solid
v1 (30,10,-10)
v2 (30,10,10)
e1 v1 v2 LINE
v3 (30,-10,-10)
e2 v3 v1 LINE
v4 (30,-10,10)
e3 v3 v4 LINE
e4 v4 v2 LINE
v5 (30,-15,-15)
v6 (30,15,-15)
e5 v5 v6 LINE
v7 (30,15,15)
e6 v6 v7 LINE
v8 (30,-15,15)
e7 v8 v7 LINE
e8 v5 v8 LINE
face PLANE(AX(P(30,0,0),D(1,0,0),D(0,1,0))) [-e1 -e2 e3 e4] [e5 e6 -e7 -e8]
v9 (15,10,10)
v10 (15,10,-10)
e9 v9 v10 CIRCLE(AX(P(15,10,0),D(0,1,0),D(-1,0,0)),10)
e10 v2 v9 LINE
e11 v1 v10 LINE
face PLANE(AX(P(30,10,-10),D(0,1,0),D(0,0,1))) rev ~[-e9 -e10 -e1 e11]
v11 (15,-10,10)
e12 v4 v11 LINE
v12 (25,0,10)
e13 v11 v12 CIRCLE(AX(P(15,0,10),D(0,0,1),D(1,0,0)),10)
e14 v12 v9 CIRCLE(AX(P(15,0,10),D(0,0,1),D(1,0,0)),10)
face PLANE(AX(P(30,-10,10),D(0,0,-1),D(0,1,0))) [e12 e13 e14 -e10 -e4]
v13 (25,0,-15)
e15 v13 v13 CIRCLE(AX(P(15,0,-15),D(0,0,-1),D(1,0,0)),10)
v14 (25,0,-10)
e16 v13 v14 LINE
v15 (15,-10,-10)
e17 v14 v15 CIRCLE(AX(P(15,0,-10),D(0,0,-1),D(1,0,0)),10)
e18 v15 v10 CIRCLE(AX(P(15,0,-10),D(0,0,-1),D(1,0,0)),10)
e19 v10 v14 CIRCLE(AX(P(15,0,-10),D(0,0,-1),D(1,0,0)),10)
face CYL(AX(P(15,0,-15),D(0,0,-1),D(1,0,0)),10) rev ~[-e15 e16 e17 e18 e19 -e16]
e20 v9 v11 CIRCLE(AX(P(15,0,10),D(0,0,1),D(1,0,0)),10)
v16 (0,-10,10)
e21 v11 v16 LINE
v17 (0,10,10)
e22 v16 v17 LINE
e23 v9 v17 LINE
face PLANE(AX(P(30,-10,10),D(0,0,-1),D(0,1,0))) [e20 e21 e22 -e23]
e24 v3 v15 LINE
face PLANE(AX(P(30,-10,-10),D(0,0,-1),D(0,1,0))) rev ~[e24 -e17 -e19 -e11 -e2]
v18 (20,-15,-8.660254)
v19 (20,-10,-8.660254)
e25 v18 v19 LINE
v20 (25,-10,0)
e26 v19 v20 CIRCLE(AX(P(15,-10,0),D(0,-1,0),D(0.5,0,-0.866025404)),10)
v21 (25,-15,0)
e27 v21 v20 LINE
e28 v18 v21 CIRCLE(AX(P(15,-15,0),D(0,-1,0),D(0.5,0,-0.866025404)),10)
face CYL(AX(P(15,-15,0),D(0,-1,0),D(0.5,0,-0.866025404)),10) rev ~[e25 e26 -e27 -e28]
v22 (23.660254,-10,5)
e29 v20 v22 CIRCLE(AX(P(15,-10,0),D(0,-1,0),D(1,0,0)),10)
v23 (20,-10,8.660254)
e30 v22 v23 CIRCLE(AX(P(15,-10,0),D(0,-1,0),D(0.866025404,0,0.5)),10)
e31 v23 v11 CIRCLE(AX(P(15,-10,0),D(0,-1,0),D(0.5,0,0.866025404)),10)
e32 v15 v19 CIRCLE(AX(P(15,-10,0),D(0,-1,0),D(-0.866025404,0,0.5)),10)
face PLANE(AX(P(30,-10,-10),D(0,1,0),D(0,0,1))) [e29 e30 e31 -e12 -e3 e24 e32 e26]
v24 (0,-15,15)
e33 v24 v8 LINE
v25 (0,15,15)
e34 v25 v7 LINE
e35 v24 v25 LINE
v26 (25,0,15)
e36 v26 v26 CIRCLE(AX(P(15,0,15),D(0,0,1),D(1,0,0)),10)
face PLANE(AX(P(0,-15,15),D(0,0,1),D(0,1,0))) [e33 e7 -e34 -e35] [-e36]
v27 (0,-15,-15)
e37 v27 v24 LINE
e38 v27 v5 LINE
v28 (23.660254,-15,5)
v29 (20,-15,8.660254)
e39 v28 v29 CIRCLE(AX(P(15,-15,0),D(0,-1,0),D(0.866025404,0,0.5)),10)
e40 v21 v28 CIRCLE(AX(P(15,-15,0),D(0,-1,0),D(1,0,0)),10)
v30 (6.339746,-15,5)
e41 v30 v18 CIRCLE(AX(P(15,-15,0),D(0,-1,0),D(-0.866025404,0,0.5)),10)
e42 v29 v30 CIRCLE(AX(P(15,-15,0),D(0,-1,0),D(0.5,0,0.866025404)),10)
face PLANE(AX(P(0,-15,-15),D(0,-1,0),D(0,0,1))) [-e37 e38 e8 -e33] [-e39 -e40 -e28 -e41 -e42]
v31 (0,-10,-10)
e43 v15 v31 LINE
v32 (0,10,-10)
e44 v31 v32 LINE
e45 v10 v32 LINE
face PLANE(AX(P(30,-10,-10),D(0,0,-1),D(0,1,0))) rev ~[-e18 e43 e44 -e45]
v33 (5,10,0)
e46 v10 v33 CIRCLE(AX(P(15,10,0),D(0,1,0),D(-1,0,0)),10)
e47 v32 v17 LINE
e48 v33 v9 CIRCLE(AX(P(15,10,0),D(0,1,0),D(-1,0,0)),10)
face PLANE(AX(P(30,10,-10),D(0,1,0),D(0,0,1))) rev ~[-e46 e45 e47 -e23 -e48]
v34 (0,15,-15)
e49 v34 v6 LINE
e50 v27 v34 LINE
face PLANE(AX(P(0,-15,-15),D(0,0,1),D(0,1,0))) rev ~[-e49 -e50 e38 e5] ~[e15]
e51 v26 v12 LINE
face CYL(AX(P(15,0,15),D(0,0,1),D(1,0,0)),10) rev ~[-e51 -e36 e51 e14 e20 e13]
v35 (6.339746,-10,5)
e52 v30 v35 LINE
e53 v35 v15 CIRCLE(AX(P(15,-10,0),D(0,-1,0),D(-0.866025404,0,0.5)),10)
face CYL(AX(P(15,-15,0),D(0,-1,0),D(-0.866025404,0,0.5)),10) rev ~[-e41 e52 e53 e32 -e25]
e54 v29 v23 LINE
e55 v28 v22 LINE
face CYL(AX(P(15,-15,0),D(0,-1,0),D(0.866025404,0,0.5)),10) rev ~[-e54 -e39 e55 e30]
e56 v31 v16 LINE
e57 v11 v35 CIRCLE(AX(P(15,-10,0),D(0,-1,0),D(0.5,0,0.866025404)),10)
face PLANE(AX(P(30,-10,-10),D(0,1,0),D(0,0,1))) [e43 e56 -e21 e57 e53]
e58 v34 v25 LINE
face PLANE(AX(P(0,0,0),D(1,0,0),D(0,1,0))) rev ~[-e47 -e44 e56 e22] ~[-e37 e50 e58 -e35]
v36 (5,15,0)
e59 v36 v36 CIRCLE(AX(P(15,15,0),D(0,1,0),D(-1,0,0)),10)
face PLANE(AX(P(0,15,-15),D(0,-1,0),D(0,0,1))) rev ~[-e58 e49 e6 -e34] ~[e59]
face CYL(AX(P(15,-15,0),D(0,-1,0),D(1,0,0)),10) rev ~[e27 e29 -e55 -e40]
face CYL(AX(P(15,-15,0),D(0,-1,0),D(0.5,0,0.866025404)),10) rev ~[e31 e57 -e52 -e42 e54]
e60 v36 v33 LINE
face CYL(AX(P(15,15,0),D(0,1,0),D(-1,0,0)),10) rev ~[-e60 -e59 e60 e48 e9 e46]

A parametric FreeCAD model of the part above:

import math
import FreeCAD as App
import Part
import Sketcher

V = App.Vector
Q = App.Units.Quantity


def add_polygon(sketch, points):
    """Adds a closed chain of lines whose ends are joined by coincident constraints."""
    first, n = sketch.GeometryCount, len(points)
    for a, b in zip(points, points[1:] + points[:1]):
        sketch.addGeometry(Part.LineSegment(App.Vector(*a, 0), App.Vector(*b, 0)), False)
    for i in range(n):
        sketch.addConstraint(Sketcher.Constraint("Coincident", first + i, 2, first + (i + 1) % n, 1))

doc = App.newDocument("Part")
body = doc.addObject("PartDesign::Body", "Body")

# Sketch on YZ plane
sketch1 = body.newObject("Sketcher::SketchObject", "Sketch")
sketch1.AttachmentSupport = (doc.getObject("YZ_Plane"), [""])
sketch1.MapMode = "FlatFace"
add_polygon(sketch1, [(-15, 15), (-15, -15), (15, -15), (15, 15)])  # lines 0-3
sketch1.addConstraint([
    Sketcher.Constraint("Vertical", 0),
    Sketcher.Constraint("Horizontal", 1),
    Sketcher.Constraint("Vertical", 2),
    Sketcher.Constraint("Horizontal", 3),
    Sketcher.Constraint("Symmetric", 0, 2, 2, 2, -1, 1),
    Sketcher.Constraint("Equal", 3, 0),
    Sketcher.Constraint("DistanceX", 1, 1, 1, 2, Q("30 mm")),
])
pad1 = body.newObject("PartDesign::Pad", "Pad")
pad1.Profile = sketch1
pad1.Length = 30

# Sketch on YZ plane
sketch2 = body.newObject("Sketcher::SketchObject", "Sketch001")
sketch2.AttachmentSupport = (doc.getObject("YZ_Plane"), [""])
sketch2.MapMode = "FlatFace"
sketch2.AttachmentOffset = App.Placement(V(0, 0, 30), App.Rotation())
add_polygon(sketch2, [(-10, 10), (-10, -10), (10, -10), (10, 10)])  # lines 0-3
sketch2.addConstraint([
    Sketcher.Constraint("Vertical", 0),
    Sketcher.Constraint("Horizontal", 1),
    Sketcher.Constraint("Vertical", 2),
    Sketcher.Constraint("Horizontal", 3),
    Sketcher.Constraint("Symmetric", 0, 2, 2, 2, -1, 1),
    Sketcher.Constraint("Equal", 3, 0),
    Sketcher.Constraint("DistanceX", 1, 1, 1, 2, Q("20 mm")),
])
pocket1 = body.newObject("PartDesign::Pocket", "Pocket")
pocket1.Profile = sketch2
pocket1.Type = "ThroughAll"

# Sketch on XZ plane
sketch3 = body.newObject("Sketcher::SketchObject", "Sketch002")
sketch3.AttachmentSupport = (doc.getObject("XZ_Plane"), [""])
sketch3.MapMode = "FlatFace"
sketch3.AttachmentOffset = App.Placement(V(0, 0, 15), App.Rotation())
sketch3.addGeometry([
    Part.ArcOfCircle(Part.Circle(V(15, 0, 0), V(0, 0, 1), 10), math.radians(30), math.radians(60)),  # 0
    Part.ArcOfCircle(Part.Circle(V(15, 0, 0), V(0, 0, 1), 10), math.radians(60), math.radians(150)),  # 1
    Part.ArcOfCircle(Part.Circle(V(15, 0, 0), V(0, 0, 1), 10), math.radians(150), math.radians(300)),  # 2
    Part.ArcOfCircle(Part.Circle(V(15, 0, 0), V(0, 0, 1), 10), math.radians(-60), math.radians(0)),  # 3
    Part.ArcOfCircle(Part.Circle(V(15, 0, 0), V(0, 0, 1), 10), math.radians(0), math.radians(30)),  # 4
], False)
sketch3.addConstraint([
    Sketcher.Constraint("Tangent", 0, 2, 1, 1),
    Sketcher.Constraint("Tangent", 1, 2, 2, 1),
    Sketcher.Constraint("Tangent", 2, 2, 3, 1),
    Sketcher.Constraint("Tangent", 3, 2, 4, 1),
    Sketcher.Constraint("Tangent", 4, 2, 0, 1),
    Sketcher.Constraint("Coincident", 2, 3, 0, 3),
    Sketcher.Constraint("Symmetric", 0, 2, 2, 2, -1),
    Sketcher.Constraint("PointOnObject", 3, 2, -1),
    Sketcher.Constraint("Horizontal", 1, 2, 4, 2),
    Sketcher.Constraint("Radius", 0, Q("10 mm")),
    Sketcher.Constraint("DistanceX", -1, 1, 0, 3, Q("15 mm")),
    Sketcher.Constraint("DistanceX", -1, 1, 0, 2, Q("20 mm")),
    Sketcher.Constraint("DistanceY", -1, 1, 1, 2, Q("5 mm")),
])
pocket2 = body.newObject("PartDesign::Pocket", "Pocket001")
pocket2.Profile = sketch3
pocket2.Length = 5

# Sketch on XY plane
sketch4 = body.newObject("Sketcher::SketchObject", "Sketch003")
sketch4.AttachmentSupport = (doc.getObject("XY_Plane"), [""])
sketch4.MapMode = "FlatFace"
sketch4.AttachmentOffset = App.Placement(V(0, 0, 15), App.Rotation())
sketch4.addGeometry(Part.Circle(V(15, 0, 0), V(0, 0, 1), 10), False)
sketch4.addConstraint([
    Sketcher.Constraint("PointOnObject", 0, 3, -1),
    Sketcher.Constraint("Diameter", 0, Q("20 mm")),
    Sketcher.Constraint("DistanceX", -1, 1, 0, 3, Q("15 mm")),
])
pocket3 = body.newObject("PartDesign::Pocket", "Pocket002")
pocket3.Profile = sketch4
pocket3.Length = 5

# Sketch on XZ plane
sketch5 = body.newObject("Sketcher::SketchObject", "Sketch004")
sketch5.AttachmentSupport = (doc.getObject("XZ_Plane"), [""])
sketch5.MapMode = "FlatFace"
sketch5.AttachmentOffset = App.Placement(V(0, 0, -15), App.Rotation())
sketch5.addGeometry(Part.Circle(V(15, 0, 0), V(0, 0, 1), 10), False)
sketch5.addConstraint([
    Sketcher.Constraint("PointOnObject", 0, 3, -1),
    Sketcher.Constraint("Diameter", 0, Q("20 mm")),
    Sketcher.Constraint("DistanceX", -1, 1, 0, 3, Q("15 mm")),
])
pocket4 = body.newObject("PartDesign::Pocket", "Pocket003")
pocket4.Profile = sketch5
pocket4.Type = "ThroughAll"
pocket4.Reversed = True

# Sketch on XY plane
sketch6 = body.newObject("Sketcher::SketchObject", "Sketch005")
sketch6.AttachmentSupport = (doc.getObject("XY_Plane"), [""])
sketch6.MapMode = "FlatFace"
sketch6.AttachmentOffset = App.Placement(V(0, 0, -15), App.Rotation())
sketch6.addGeometry(Part.Circle(V(15, 0, 0), V(0, 0, 1), 10), False)
sketch6.addConstraint([
    Sketcher.Constraint("PointOnObject", 0, 3, -1),
    Sketcher.Constraint("Diameter", 0, Q("20 mm")),
    Sketcher.Constraint("DistanceX", -1, 1, 0, 3, Q("15 mm")),
])
pocket5 = body.newObject("PartDesign::Pocket", "Pocket004")
pocket5.Profile = sketch6
pocket5.Type = "ThroughAll"
pocket5.Reversed = True

doc.recompute()
